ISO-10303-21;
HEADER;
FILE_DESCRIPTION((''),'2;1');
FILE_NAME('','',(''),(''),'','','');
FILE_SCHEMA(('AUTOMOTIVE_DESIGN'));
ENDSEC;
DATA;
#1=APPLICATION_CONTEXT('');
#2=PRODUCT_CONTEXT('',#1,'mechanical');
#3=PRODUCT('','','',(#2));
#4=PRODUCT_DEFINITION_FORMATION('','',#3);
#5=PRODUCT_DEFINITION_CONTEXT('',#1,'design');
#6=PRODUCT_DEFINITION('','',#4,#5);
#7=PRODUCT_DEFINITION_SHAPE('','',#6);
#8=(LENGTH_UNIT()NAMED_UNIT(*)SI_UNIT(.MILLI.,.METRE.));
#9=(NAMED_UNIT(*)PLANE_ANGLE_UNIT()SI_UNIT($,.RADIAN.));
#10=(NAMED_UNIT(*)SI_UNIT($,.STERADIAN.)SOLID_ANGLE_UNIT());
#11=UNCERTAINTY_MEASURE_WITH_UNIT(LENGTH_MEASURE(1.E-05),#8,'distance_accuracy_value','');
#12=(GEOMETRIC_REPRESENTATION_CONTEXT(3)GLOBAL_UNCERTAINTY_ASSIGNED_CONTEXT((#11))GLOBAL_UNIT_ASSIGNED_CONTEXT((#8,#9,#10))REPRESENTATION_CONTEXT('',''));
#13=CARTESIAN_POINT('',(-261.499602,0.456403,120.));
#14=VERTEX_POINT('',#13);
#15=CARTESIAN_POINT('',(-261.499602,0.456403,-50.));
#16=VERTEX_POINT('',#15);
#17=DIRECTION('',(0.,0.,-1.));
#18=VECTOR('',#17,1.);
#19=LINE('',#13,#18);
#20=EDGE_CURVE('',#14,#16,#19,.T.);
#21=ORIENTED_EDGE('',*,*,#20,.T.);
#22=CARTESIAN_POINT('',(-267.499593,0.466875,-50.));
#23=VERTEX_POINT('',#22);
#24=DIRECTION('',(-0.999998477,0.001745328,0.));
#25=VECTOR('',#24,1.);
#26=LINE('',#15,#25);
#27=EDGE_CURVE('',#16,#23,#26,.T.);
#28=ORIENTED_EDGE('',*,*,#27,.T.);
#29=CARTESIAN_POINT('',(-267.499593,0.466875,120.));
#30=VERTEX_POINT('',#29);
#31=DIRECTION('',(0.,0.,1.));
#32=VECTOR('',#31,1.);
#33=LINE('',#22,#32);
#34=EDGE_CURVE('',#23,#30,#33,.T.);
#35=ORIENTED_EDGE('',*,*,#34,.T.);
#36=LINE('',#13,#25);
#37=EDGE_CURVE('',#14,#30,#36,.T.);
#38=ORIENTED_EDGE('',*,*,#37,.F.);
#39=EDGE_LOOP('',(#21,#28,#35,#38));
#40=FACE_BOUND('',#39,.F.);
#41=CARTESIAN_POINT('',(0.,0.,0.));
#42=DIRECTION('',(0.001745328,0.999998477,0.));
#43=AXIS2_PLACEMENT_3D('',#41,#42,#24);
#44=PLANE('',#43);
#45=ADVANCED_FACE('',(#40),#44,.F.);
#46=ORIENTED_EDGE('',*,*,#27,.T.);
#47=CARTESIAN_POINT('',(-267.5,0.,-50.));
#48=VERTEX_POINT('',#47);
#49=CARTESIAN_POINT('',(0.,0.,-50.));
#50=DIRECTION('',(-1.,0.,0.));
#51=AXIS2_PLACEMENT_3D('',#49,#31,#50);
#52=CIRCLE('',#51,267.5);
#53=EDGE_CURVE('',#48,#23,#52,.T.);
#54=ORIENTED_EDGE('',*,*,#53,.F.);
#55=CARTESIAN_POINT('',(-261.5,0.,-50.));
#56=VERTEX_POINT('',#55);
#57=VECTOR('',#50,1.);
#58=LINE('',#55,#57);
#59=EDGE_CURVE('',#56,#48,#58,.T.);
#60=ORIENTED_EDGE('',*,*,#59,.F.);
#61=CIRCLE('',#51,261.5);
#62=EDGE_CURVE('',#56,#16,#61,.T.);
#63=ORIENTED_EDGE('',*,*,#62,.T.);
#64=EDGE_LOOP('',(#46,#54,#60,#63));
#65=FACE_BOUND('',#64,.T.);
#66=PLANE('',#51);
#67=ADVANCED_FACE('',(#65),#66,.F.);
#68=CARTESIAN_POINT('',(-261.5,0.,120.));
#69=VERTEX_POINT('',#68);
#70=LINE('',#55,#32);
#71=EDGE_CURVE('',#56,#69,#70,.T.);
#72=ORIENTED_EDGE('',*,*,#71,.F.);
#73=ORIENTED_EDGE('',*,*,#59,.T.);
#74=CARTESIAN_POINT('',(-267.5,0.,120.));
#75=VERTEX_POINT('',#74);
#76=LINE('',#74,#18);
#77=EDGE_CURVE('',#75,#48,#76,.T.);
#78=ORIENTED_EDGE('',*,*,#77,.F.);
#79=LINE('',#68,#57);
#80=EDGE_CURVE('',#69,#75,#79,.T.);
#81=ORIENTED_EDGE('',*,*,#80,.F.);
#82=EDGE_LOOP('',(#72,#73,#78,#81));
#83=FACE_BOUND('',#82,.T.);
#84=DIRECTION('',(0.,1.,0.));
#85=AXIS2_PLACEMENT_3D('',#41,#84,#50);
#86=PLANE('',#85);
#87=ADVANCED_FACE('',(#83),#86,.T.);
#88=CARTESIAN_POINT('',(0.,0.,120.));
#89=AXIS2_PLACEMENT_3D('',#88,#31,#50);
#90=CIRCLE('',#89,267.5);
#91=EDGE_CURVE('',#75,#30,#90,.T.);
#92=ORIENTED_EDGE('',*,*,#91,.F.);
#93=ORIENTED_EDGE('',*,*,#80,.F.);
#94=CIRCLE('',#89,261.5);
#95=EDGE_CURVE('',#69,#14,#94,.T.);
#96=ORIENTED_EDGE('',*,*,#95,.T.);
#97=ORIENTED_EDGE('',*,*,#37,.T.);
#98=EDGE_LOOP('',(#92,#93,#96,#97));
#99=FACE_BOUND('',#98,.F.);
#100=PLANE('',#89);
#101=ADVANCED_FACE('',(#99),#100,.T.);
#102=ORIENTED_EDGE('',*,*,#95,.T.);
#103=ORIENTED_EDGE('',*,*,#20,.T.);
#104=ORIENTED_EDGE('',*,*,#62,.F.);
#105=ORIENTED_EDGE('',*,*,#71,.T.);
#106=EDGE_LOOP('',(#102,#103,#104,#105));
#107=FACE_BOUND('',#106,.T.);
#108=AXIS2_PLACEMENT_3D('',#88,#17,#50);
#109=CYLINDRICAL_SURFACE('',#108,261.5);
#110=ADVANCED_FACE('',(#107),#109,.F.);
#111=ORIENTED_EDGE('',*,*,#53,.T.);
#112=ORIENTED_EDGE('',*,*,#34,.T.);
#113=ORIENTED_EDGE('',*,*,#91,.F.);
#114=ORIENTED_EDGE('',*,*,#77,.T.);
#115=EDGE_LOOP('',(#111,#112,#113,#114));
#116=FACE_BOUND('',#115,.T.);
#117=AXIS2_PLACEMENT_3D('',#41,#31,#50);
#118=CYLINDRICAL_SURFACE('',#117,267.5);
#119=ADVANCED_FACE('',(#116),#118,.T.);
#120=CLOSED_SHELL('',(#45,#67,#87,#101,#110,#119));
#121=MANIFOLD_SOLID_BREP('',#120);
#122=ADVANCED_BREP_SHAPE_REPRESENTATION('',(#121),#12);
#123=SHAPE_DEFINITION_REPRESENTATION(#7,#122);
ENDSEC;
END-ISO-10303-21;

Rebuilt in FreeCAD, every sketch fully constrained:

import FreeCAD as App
import Part
import Sketcher

doc = App.newDocument("Part")
body = doc.addObject("PartDesign::Body", "Body")

# Sketch on XZ plane
sketch1 = body.newObject("Sketcher::SketchObject", "Sketch")
sketch1.AttachmentSupport = (doc.getObject("XZ_Plane"), [""])
sketch1.MapMode = "FlatFace"
sketch1.addGeometry(Part.LineSegment(App.Vector(-268, 120, 0), App.Vector(-262, 120, 0)), False)
sketch1.addGeometry(Part.LineSegment(App.Vector(-262, 120, 0), App.Vector(-262, -50, 0)), False)
sketch1.addGeometry(Part.LineSegment(App.Vector(-262, -50, 0), App.Vector(-268, -50, 0)), False)
sketch1.addGeometry(Part.LineSegment(App.Vector(-268, -50, 0), App.Vector(-268, 120, 0)), False)
sketch1.addConstraint(Sketcher.Constraint("Coincident", 0, 2, 1, 1))
sketch1.addConstraint(Sketcher.Constraint("Coincident", 1, 2, 2, 1))
sketch1.addConstraint(Sketcher.Constraint("Coincident", 2, 2, 3, 1))
sketch1.addConstraint(Sketcher.Constraint("Coincident", 3, 2, 0, 1))
sketch1.addConstraint(Sketcher.Constraint("Horizontal", 0))
sketch1.addConstraint(Sketcher.Constraint("Vertical", 1))
sketch1.addConstraint(Sketcher.Constraint("Horizontal", 2))
sketch1.addConstraint(Sketcher.Constraint("Vertical", 3))
sketch1.addConstraint(Sketcher.Constraint("DistanceX", 0, 1, 0, 2, 6.0))
sketch1.addConstraint(Sketcher.Constraint("DistanceY", -1, 1, 0, 2, 120.0))
sketch1.addConstraint(Sketcher.Constraint("DistanceY", 1, 2, -1, 1, 50.0))
sketch1.addConstraint(Sketcher.Constraint("DistanceX", 0, 2, -1, 1, 261.5))
revolution = body.newObject("PartDesign::Revolution", "Revolution")
revolution.Profile = sketch1
revolution.ReferenceAxis = (sketch1, ["V_Axis"])
revolution.Angle = 359.9

doc.recompute()
